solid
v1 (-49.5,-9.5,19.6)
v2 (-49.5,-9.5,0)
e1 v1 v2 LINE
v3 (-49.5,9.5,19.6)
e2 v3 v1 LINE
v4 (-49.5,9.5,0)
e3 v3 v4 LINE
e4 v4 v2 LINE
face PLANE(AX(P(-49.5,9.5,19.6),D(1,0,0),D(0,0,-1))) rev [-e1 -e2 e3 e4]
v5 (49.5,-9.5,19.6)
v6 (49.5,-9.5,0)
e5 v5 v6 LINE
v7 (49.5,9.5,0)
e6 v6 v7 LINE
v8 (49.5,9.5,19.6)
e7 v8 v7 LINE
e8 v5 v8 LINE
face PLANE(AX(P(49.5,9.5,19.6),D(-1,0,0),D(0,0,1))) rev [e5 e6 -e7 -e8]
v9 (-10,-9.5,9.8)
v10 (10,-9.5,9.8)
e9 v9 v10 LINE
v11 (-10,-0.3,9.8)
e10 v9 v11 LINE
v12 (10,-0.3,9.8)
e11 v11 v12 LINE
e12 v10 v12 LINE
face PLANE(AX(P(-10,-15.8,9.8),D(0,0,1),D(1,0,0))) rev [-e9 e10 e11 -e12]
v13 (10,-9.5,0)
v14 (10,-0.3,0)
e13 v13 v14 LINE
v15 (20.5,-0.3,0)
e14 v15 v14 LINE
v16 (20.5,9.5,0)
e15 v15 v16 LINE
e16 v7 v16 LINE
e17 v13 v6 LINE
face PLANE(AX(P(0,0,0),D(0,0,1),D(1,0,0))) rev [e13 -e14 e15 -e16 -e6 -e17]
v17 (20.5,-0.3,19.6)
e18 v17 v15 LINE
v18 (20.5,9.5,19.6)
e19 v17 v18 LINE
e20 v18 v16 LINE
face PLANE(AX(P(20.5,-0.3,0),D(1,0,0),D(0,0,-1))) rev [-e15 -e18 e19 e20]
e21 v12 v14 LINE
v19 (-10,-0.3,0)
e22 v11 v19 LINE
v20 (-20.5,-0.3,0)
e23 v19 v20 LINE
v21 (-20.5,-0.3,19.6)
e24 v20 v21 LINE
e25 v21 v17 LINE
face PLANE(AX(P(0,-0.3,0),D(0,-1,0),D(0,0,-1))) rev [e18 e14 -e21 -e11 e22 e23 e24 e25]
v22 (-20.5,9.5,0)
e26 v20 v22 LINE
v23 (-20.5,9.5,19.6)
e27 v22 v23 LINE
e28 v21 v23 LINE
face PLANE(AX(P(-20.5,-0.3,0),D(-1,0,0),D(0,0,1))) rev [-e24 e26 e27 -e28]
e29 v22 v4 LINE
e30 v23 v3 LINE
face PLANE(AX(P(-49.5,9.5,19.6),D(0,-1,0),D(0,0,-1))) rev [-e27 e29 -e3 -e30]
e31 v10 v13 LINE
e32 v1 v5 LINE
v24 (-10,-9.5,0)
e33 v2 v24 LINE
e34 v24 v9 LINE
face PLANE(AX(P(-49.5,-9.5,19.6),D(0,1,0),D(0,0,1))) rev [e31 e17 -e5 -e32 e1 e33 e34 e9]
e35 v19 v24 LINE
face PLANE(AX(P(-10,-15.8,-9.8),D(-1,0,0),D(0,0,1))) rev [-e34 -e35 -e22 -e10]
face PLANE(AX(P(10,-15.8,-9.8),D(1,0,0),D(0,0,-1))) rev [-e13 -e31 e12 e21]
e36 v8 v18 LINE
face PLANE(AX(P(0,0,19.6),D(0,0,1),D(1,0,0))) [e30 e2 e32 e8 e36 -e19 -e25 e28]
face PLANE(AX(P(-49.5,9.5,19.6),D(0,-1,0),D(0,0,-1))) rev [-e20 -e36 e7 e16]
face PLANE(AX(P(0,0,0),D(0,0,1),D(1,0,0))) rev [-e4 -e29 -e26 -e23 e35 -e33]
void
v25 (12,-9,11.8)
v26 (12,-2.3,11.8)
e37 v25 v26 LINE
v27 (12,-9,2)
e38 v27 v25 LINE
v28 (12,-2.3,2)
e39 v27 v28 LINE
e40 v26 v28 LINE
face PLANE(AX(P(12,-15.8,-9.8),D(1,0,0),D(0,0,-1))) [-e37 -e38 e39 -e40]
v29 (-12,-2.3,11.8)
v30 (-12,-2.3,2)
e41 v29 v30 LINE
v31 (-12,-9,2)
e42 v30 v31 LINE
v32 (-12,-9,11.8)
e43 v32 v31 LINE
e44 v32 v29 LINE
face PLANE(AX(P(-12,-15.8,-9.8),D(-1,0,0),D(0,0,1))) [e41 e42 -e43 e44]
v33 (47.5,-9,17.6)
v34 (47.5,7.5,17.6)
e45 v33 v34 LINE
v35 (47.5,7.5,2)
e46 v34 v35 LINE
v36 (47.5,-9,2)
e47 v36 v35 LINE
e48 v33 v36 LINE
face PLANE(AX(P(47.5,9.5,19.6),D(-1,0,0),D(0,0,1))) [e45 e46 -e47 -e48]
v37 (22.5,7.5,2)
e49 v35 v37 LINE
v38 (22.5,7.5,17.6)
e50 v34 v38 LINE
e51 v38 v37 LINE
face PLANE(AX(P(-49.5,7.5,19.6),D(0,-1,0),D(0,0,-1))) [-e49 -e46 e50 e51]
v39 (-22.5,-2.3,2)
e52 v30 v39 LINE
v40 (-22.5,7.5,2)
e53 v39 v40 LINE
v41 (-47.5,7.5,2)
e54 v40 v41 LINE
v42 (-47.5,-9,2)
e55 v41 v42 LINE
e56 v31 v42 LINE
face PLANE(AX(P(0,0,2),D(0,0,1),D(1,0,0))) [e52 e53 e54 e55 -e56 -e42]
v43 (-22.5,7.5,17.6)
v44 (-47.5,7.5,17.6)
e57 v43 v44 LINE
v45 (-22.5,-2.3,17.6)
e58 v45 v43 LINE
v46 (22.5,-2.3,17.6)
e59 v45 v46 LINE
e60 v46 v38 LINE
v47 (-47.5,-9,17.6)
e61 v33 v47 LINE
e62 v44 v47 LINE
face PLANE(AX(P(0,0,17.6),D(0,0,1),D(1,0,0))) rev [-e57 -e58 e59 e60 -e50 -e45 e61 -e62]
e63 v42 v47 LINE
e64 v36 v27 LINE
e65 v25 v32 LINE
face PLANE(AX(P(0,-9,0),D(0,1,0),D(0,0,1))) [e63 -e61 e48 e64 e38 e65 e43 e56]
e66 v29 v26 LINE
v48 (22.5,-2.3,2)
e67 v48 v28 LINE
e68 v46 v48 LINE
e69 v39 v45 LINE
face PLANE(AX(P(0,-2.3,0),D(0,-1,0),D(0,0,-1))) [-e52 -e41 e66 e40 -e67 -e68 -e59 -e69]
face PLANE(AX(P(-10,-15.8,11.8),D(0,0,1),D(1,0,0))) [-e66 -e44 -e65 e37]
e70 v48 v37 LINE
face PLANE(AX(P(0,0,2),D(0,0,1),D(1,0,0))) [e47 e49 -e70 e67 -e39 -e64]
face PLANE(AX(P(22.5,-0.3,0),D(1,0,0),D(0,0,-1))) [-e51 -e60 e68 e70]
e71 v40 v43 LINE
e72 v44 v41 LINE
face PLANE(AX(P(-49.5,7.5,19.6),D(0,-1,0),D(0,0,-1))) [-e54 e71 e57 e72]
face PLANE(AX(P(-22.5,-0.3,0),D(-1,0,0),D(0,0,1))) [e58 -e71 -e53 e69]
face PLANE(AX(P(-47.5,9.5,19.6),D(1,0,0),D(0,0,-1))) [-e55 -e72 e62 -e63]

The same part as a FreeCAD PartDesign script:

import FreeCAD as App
import Part
import Sketcher
from FreeCAD import Vector


def faces_at(feature, points):
    """Names of the faces that lie closest to the given points."""
    faces = feature.Shape.Faces
    near = lambda p: min(range(len(faces)), key=lambda i: faces[i].distToShape(Part.Vertex(*p))[0])
    return sorted({f"Face{near(p) + 1}" for p in points})


def add_polygon(sketch, points):
    """Adds a closed chain of lines whose ends are joined by coincident constraints."""
    first, n = sketch.GeometryCount, len(points)
    for a, b in zip(points, points[1:] + points[:1]):
        sketch.addGeometry(Part.LineSegment(App.Vector(*a, 0), App.Vector(*b, 0)), False)
    for i in range(n):
        sketch.addConstraint(Sketcher.Constraint("Coincident", first + i, 2, first + (i + 1) % n, 1))

doc = App.newDocument("Part")
body = doc.addObject("PartDesign::Body", "Body")

# Sketch on XY plane
sketch1 = doc.addObject("Sketcher::SketchObject", "Sketch")
body.addObject(sketch1)
sketch1.AttachmentSupport = (doc.XY_Plane, [""])
sketch1.MapMode = "FlatFace"
add_polygon(sketch1, [(-49.5, 9.5), (-49.5, -9.5), (49.5, -9.5), (49.5, 9.5)])  # lines 0-3
sketch1.addConstraint([
    Sketcher.Constraint("Vertical", 0),
    Sketcher.Constraint("Horizontal", 1),
    Sketcher.Constraint("Vertical", 2),
    Sketcher.Constraint("Horizontal", 3),
    Sketcher.Constraint("Symmetric", 0, 2, 2, 2, -1, 1),
    Sketcher.Constraint("DistanceX", 1, 1, 1, 2, 99.0),
    Sketcher.Constraint("DistanceY", 0, 2, 0, 1, 19.0),
])
pad1 = doc.addObject("PartDesign::Pad", "Pad")
body.addObject(pad1)
pad1.Profile = sketch1
pad1.Length = 19.6

# Sketch on XZ plane
sketch2 = doc.addObject("Sketcher::SketchObject", "Sketch001")
body.addObject(sketch2)
sketch2.AttachmentSupport = (doc.XZ_Plane, [""])
sketch2.MapMode = "FlatFace"
sketch2.AttachmentOffset = App.Placement(Vector(0, 0, -9.5), App.Rotation())
add_polygon(sketch2, [(-20.5, 0), (-20.5, 19.6), (20.5, 19.6), (20.5, 0)])  # lines 0-3
sketch2.addConstraint([
    Sketcher.Constraint("Vertical", 0),
    Sketcher.Constraint("Horizontal", 1),
    Sketcher.Constraint("Vertical", 2),
    Sketcher.Constraint("Horizontal", 3),
    Sketcher.Constraint("Symmetric", 2, 2, 3, 2, -1, 1),
    Sketcher.Constraint("DistanceX", 1, 1, 1, 2, 41.0),
    Sketcher.Constraint("DistanceY", 0, 1, 0, 2, 19.6),
])
pocket1 = doc.addObject("PartDesign::Pocket", "Pocket")
body.addObject(pocket1)
pocket1.Profile = sketch2
pocket1.Length = 9.8
pocket1.Reversed = True

# Sketch on XZ plane
sketch3 = doc.addObject("Sketcher::SketchObject", "Sketch002")
body.addObject(sketch3)
sketch3.AttachmentSupport = (doc.XZ_Plane, [""])
sketch3.MapMode = "FlatFace"
sketch3.AttachmentOffset = App.Placement(Vector(0, 0, 0.3), App.Rotation())
add_polygon(sketch3, [(-10, -9.8), (-10, 9.8), (10, 9.8), (10, -9.8)])  # lines 0-3
sketch3.addConstraint([
    Sketcher.Constraint("Vertical", 0),
    Sketcher.Constraint("Horizontal", 1),
    Sketcher.Constraint("Vertical", 2),
    Sketcher.Constraint("Horizontal", 3),
    Sketcher.Constraint("Symmetric", 0, 2, 2, 2, -1, 1),
    Sketcher.Constraint("DistanceX", 1, 1, 1, 2, 20.0),
    Sketcher.Constraint("DistanceY", 0, 1, 0, 2, 19.6),
])
pocket2 = doc.addObject("PartDesign::Pocket", "Pocket001")
body.addObject(pocket2)
pocket2.Profile = sketch3
pocket2.Length = 15.5
pocket2.Reversed = True
doc.recompute()

thickness = doc.addObject("PartDesign::Thickness", "Thickness")
body.addObject(thickness)
thickness.Base = (pocket2, faces_at(pocket2, [(0, -9.5, 9.8)]))
thickness.Value = 2
thickness.Reversed = True
thickness.Join = "Intersection"

# Sketch on XZ plane
sketch4 = doc.addObject("Sketcher::SketchObject", "Sketch003")
body.addObject(sketch4)
sketch4.AttachmentSupport = (doc.XZ_Plane, [""])
sketch4.MapMode = "FlatFace"
sketch4.AttachmentOffset = App.Placement(Vector(0, 0, 9.5), App.Rotation())
add_polygon(sketch4, [(-49.5, 19.6), (-49.5, 0), (49.5, 0), (49.5, 19.6)])  # lines 0-3
sketch4.addConstraint([
    Sketcher.Constraint("Vertical", 0),
    Sketcher.Constraint("Horizontal", 1),
    Sketcher.Constraint("Vertical", 2),
    Sketcher.Constraint("Horizontal", 3),
    Sketcher.Constraint("Symmetric", 0, 2, 1, 2, -1, 1),
    Sketcher.Constraint("DistanceX", 1, 1, 1, 2, 99.0),
    Sketcher.Constraint("DistanceY", 0, 2, 0, 1, 19.6),
])
pad2 = doc.addObject("PartDesign::Pad", "Pad001")
body.addObject(pad2)
pad2.Profile = sketch4
pad2.Length = 0.5
pad2.Reversed = True

# Sketch on XZ plane
sketch5 = doc.addObject("Sketcher::SketchObject", "Sketch004")
body.addObject(sketch5)
sketch5.AttachmentSupport = (doc.XZ_Plane, [""])
sketch5.MapMode = "FlatFace"
sketch5.AttachmentOffset = App.Placement(Vector(0, 0, 9), App.Rotation())
add_polygon(sketch5, [(-10, 0), (-10, 9.8), (10, 9.8), (10, 0)])  # lines 0-3
sketch5.addConstraint([
    Sketcher.Constraint("Vertical", 0),
    Sketcher.Constraint("Horizontal", 1),
    Sketcher.Constraint("Vertical", 2),
    Sketcher.Constraint("Horizontal", 3),
    Sketcher.Constraint("Symmetric", 2, 2, 3, 2, -1, 1),
    Sketcher.Constraint("DistanceX", 1, 1, 1, 2, 20.0),
    Sketcher.Constraint("DistanceY", 0, 1, 0, 2, 9.8),
])
pocket3 = doc.addObject("PartDesign::Pocket", "Pocket002")
body.addObject(pocket3)
pocket3.Profile = sketch5
pocket3.Length = 6.5
pocket3.Reversed = True

doc.recompute()
